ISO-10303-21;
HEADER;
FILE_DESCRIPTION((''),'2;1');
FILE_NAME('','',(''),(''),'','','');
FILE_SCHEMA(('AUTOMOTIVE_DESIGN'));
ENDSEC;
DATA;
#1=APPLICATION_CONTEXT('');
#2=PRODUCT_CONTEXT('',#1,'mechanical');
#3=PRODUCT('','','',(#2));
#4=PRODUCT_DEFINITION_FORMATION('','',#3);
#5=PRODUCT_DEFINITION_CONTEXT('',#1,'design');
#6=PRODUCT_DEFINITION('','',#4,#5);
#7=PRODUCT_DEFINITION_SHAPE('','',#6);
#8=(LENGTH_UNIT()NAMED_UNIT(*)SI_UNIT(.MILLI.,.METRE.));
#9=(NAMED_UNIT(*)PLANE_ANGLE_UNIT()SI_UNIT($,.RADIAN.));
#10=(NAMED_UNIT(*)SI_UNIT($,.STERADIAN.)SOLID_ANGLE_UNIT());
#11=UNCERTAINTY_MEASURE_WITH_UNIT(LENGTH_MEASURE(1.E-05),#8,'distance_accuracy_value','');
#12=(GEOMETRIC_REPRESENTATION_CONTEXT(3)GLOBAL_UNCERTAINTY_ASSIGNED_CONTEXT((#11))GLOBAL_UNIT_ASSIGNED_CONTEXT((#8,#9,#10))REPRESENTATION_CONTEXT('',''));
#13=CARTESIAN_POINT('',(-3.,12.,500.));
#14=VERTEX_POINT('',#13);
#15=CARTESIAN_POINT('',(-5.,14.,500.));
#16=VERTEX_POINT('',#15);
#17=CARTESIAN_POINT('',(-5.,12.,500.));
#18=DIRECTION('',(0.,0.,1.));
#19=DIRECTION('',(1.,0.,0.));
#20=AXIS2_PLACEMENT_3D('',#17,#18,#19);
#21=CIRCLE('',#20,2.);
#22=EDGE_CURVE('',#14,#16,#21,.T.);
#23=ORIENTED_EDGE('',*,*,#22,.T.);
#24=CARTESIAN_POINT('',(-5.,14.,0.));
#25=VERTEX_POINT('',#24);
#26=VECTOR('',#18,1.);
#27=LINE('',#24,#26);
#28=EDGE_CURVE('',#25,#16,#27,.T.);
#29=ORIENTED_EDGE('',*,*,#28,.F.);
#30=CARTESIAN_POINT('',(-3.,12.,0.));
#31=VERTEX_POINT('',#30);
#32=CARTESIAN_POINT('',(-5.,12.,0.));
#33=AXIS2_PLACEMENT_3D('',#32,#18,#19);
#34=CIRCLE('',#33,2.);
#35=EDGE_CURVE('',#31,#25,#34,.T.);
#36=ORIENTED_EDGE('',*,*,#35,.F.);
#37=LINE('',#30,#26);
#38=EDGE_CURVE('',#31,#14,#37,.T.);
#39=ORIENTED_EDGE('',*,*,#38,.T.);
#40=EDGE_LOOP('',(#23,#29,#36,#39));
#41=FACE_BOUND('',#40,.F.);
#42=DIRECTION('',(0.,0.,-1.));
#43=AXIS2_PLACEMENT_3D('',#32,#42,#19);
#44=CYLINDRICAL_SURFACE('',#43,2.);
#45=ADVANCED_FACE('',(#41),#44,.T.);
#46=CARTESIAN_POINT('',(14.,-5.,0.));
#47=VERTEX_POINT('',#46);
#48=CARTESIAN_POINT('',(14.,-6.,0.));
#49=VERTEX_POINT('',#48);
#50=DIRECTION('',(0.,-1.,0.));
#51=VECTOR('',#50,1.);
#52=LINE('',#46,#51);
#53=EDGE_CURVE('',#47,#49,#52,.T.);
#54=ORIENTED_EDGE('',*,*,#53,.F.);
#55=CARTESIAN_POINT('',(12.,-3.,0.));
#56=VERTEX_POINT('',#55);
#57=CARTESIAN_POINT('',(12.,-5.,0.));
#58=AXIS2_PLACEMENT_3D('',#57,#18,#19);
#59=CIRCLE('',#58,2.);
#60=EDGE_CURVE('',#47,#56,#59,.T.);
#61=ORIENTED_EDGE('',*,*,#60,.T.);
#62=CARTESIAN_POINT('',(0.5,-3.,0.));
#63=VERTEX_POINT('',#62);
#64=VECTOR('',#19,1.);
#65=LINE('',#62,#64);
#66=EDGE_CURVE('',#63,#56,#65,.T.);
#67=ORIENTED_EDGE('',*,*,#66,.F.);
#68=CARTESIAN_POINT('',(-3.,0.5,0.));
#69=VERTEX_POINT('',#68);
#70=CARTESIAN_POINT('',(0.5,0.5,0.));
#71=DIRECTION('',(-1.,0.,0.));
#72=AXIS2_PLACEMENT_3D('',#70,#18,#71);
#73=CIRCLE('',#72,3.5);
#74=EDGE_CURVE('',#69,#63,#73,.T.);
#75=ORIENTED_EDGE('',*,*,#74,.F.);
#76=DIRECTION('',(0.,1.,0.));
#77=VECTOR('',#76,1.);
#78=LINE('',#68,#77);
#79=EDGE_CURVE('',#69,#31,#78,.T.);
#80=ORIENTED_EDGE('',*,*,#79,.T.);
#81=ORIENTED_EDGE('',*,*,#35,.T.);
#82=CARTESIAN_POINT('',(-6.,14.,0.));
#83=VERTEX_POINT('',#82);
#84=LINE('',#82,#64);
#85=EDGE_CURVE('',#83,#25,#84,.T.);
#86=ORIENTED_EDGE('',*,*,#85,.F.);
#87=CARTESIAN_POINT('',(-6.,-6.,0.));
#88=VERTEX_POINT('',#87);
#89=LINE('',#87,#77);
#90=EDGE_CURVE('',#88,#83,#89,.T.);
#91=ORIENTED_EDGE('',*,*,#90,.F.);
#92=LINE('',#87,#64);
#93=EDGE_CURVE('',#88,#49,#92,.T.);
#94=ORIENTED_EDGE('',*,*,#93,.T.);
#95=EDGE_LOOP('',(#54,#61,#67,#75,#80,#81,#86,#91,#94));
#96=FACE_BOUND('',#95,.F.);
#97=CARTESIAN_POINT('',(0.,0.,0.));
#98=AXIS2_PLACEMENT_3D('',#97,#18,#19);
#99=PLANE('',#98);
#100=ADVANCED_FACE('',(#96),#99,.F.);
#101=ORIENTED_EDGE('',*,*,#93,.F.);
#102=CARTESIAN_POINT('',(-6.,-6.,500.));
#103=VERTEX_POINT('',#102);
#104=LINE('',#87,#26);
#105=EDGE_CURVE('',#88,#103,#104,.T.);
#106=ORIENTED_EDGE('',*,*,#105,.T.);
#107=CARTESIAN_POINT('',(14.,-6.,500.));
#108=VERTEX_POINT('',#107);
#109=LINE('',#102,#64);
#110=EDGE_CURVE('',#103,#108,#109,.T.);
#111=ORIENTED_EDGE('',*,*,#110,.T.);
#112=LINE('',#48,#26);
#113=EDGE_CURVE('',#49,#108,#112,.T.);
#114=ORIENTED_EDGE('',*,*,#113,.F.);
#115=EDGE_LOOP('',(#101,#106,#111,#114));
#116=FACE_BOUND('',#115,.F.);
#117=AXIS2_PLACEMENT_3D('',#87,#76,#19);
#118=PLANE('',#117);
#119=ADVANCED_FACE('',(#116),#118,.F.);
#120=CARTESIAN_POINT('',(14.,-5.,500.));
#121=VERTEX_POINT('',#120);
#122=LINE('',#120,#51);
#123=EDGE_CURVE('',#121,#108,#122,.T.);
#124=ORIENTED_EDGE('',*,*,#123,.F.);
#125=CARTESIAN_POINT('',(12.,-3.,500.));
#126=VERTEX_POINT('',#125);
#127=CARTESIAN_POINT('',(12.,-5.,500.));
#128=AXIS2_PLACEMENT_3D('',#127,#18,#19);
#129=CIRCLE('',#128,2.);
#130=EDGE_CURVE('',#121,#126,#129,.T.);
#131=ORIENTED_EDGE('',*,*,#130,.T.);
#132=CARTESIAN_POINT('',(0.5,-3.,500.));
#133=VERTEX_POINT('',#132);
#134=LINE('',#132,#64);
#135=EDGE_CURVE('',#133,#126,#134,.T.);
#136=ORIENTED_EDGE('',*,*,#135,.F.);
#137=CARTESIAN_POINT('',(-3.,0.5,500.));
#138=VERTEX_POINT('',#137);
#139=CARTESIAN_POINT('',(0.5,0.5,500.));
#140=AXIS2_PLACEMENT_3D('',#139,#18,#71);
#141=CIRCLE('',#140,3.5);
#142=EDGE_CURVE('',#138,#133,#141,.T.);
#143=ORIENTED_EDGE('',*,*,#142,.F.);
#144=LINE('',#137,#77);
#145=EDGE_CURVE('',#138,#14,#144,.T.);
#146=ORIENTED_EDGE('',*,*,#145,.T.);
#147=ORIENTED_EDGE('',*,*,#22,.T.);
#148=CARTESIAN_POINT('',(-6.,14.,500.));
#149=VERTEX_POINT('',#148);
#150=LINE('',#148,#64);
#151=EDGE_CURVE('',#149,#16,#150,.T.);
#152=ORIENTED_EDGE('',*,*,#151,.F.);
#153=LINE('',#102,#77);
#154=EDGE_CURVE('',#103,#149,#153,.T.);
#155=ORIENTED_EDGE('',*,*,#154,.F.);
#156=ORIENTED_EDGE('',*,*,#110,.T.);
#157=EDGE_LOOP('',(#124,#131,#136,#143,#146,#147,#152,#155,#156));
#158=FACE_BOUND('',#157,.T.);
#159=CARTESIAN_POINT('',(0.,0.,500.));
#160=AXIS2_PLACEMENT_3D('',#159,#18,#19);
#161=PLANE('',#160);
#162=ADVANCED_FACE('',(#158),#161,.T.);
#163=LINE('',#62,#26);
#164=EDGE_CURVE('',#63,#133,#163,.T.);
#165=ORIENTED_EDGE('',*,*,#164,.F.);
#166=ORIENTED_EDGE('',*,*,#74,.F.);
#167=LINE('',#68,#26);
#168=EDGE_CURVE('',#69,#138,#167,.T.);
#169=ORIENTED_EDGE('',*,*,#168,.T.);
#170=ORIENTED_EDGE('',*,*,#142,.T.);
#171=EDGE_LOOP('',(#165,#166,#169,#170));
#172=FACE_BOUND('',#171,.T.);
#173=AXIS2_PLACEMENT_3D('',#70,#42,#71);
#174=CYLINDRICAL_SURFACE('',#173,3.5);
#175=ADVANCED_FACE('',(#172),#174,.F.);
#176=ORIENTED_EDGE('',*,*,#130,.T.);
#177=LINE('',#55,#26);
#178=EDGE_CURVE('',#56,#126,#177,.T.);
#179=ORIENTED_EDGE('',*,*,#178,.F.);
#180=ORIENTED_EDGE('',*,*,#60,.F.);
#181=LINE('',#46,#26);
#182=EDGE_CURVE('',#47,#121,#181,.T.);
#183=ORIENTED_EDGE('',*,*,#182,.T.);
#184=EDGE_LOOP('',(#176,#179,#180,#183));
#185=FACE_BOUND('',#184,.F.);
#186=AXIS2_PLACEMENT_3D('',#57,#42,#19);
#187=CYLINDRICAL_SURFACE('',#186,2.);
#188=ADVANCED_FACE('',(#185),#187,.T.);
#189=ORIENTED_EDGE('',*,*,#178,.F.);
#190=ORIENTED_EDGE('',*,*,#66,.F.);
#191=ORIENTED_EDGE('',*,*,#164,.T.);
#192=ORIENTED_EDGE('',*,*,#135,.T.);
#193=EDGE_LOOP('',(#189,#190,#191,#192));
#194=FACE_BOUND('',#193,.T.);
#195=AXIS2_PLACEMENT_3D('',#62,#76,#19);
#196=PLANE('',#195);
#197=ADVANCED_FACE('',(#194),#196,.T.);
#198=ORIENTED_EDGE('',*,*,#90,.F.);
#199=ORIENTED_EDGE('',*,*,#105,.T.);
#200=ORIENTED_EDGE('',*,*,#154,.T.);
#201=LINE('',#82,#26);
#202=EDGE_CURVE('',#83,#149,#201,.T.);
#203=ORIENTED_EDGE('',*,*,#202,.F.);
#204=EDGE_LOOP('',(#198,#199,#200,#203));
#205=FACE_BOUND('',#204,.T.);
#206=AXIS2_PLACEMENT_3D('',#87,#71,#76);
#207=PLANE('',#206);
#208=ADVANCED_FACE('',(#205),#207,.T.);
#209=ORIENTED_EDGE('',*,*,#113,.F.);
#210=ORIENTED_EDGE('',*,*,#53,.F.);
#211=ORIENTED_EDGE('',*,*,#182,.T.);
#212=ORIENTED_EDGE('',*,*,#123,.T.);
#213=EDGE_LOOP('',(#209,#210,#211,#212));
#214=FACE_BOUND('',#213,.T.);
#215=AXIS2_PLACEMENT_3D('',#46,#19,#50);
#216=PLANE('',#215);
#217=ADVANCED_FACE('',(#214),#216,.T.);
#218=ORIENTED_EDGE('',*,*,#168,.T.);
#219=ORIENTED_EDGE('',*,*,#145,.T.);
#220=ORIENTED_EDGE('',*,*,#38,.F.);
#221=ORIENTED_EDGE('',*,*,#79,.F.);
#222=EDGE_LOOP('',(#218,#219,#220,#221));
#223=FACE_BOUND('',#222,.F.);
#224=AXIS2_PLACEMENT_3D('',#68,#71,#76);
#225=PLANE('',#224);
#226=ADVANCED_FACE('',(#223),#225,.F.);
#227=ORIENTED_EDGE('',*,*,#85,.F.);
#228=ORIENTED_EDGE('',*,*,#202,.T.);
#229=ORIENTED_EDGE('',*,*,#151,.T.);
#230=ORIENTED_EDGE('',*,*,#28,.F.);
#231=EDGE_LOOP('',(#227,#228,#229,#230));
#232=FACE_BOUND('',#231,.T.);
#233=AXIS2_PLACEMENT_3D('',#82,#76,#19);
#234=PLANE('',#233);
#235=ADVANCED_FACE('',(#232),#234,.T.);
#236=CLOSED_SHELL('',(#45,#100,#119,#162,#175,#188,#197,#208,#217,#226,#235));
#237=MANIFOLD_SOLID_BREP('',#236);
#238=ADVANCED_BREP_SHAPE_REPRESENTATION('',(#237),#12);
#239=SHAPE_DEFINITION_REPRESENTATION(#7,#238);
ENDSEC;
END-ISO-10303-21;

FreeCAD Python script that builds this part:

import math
import FreeCAD as App
import Part
import Sketcher

V = App.Vector
Q = App.Units.Quantity

doc = App.newDocument("Part")
body = doc.addObject("PartDesign::Body", "Body")

# Sketch on XY plane
sketch1 = doc.addObject("Sketcher::SketchObject", "Sketch")
body.addObject(sketch1)
sketch1.AttachmentSupport = (doc.XY_Plane, [""])
sketch1.MapMode = "FlatFace"
sketch1.addGeometry([
    Part.ArcOfCircle(Part.Circle(V(0.5, 0.5, 0), V(0, 0, 1), 3.5), math.radians(180), math.radians(270)),  # 0
    Part.LineSegment(V(-3, 0.5, 0), V(-3, 12, 0)),  # 1
    Part.ArcOfCircle(Part.Circle(V(-5, 12, 0), V(0, 0, 1), 2), math.radians(0), math.radians(90)),  # 2
    Part.LineSegment(V(-5, 14, 0), V(-6, 14, 0)),  # 3
    Part.LineSegment(V(-6, 14, 0), V(-6, -6, 0)),  # 4
    Part.LineSegment(V(-6, -6, 0), V(14, -6, 0)),  # 5
    Part.LineSegment(V(14, -6, 0), V(14, -5, 0)),  # 6
    Part.ArcOfCircle(Part.Circle(V(12, -5, 0), V(0, 0, 1), 2), math.radians(0), math.radians(90)),  # 7
    Part.LineSegment(V(12, -3, 0), V(0.5, -3, 0)),  # 8
], False)
sketch1.addConstraint([
    Sketcher.Constraint("Tangent", 0, 1, 1, 1),
    Sketcher.Constraint("Tangent", 1, 2, 2, 1),
    Sketcher.Constraint("Tangent", 2, 2, 3, 1),
    Sketcher.Constraint("Coincident", 3, 2, 4, 1),
    Sketcher.Constraint("Coincident", 4, 2, 5, 1),
    Sketcher.Constraint("Coincident", 5, 2, 6, 1),
    Sketcher.Constraint("Tangent", 6, 2, 7, 1),
    Sketcher.Constraint("Tangent", 7, 2, 8, 1),
    Sketcher.Constraint("Tangent", 8, 2, 0, 2),
    Sketcher.Constraint("Vertical", 1),
    Sketcher.Constraint("Horizontal", 3),
    Sketcher.Constraint("Vertical", 4),
    Sketcher.Constraint("Horizontal", 5),
    Sketcher.Constraint("Vertical", 6),
    Sketcher.Constraint("Horizontal", 8),
    Sketcher.Constraint("Equal", 2, 7),
    Sketcher.Constraint("Equal", 8, 1),
    Sketcher.Constraint("Equal", 5, 4),
    Sketcher.Constraint("Radius", 2, Q("2 mm")),
    Sketcher.Constraint("Radius", 0, Q("3.5 mm")),
    Sketcher.Constraint("DistanceX", 5, 1, 5, 2, Q("20 mm")),
    Sketcher.Constraint("DistanceX", 0, 1, -1, 1, Q("3 mm")),
    Sketcher.Constraint("DistanceX", 3, 2, -1, 1, Q("6 mm")),
    Sketcher.Constraint("DistanceY", 4, 2, -1, 1, Q("6 mm")),
])
pad1 = doc.addObject("PartDesign::Pad", "Pad")
body.addObject(pad1)
pad1.Profile = sketch1
pad1.Length = 500

doc.recompute()
